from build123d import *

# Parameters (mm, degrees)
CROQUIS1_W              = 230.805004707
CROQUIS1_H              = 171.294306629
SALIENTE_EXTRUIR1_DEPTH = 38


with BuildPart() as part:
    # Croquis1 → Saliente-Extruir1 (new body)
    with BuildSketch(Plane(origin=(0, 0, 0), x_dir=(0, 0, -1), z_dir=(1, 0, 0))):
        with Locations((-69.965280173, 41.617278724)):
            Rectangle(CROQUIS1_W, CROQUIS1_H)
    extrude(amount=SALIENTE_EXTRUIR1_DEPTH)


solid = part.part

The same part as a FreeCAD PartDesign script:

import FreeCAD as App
import Part
import Sketcher
from FreeCAD import Vector

doc = App.newDocument("Part")
params = doc.addObject("Spreadsheet::Sheet", "Params")
for row, (alias, value) in enumerate([
    ("pad1_length", "38 mm"),
], start=1):
    params.set(f"A{row}", alias)
    params.set(f"B{row}", "=" + value)
    params.setAlias(f"B{row}", alias)

body = doc.addObject("PartDesign::Body", "Body")

# Sketch on YZ plane
sketch1 = body.newObject("Sketcher::SketchObject", "Sketch")
sketch1.AttachmentSupport = (doc.getObject("YZ_Plane"), [""])
sketch1.MapMode = "FlatFace"
sketch1.addGeometry([
    Part.LineSegment(Vector(127, 185, 0), Vector(-44, 185, 0)),
    Part.LineSegment(Vector(-44, 185, 0), Vector(-44, -45, 0)),
    Part.LineSegment(Vector(-44, -45, 0), Vector(127, -45, 0)),
    Part.LineSegment(Vector(127, -45, 0), Vector(127, 185, 0)),
], False)
sketch1.addConstraint([
    Sketcher.Constraint("Coincident", 0, 2, 1, 1),
    Sketcher.Constraint("Coincident", 1, 2, 2, 1),
    Sketcher.Constraint("Coincident", 2, 2, 3, 1),
    Sketcher.Constraint("Coincident", 3, 2, 0, 1),
    Sketcher.Constraint("Horizontal", 0),
    Sketcher.Constraint("Vertical", 1),
    Sketcher.Constraint("Horizontal", 2),
    Sketcher.Constraint("Vertical", 3),
    Sketcher.Constraint("DistanceX", 0, 2, 0, 1, 171.294307),
    Sketcher.Constraint("DistanceY", 1, 2, 1, 1, 230.805005),
    Sketcher.Constraint("DistanceX", 0, 2, -1, 1, 44.029875),
    Sketcher.Constraint("DistanceY", -1, 1, 0, 2, 185.367783),
])
pad1 = body.newObject("PartDesign::Pad", "Pad")
pad1.Profile = sketch1
pad1.setExpression("Length", "Params.pad1_length")

doc.recompute()
